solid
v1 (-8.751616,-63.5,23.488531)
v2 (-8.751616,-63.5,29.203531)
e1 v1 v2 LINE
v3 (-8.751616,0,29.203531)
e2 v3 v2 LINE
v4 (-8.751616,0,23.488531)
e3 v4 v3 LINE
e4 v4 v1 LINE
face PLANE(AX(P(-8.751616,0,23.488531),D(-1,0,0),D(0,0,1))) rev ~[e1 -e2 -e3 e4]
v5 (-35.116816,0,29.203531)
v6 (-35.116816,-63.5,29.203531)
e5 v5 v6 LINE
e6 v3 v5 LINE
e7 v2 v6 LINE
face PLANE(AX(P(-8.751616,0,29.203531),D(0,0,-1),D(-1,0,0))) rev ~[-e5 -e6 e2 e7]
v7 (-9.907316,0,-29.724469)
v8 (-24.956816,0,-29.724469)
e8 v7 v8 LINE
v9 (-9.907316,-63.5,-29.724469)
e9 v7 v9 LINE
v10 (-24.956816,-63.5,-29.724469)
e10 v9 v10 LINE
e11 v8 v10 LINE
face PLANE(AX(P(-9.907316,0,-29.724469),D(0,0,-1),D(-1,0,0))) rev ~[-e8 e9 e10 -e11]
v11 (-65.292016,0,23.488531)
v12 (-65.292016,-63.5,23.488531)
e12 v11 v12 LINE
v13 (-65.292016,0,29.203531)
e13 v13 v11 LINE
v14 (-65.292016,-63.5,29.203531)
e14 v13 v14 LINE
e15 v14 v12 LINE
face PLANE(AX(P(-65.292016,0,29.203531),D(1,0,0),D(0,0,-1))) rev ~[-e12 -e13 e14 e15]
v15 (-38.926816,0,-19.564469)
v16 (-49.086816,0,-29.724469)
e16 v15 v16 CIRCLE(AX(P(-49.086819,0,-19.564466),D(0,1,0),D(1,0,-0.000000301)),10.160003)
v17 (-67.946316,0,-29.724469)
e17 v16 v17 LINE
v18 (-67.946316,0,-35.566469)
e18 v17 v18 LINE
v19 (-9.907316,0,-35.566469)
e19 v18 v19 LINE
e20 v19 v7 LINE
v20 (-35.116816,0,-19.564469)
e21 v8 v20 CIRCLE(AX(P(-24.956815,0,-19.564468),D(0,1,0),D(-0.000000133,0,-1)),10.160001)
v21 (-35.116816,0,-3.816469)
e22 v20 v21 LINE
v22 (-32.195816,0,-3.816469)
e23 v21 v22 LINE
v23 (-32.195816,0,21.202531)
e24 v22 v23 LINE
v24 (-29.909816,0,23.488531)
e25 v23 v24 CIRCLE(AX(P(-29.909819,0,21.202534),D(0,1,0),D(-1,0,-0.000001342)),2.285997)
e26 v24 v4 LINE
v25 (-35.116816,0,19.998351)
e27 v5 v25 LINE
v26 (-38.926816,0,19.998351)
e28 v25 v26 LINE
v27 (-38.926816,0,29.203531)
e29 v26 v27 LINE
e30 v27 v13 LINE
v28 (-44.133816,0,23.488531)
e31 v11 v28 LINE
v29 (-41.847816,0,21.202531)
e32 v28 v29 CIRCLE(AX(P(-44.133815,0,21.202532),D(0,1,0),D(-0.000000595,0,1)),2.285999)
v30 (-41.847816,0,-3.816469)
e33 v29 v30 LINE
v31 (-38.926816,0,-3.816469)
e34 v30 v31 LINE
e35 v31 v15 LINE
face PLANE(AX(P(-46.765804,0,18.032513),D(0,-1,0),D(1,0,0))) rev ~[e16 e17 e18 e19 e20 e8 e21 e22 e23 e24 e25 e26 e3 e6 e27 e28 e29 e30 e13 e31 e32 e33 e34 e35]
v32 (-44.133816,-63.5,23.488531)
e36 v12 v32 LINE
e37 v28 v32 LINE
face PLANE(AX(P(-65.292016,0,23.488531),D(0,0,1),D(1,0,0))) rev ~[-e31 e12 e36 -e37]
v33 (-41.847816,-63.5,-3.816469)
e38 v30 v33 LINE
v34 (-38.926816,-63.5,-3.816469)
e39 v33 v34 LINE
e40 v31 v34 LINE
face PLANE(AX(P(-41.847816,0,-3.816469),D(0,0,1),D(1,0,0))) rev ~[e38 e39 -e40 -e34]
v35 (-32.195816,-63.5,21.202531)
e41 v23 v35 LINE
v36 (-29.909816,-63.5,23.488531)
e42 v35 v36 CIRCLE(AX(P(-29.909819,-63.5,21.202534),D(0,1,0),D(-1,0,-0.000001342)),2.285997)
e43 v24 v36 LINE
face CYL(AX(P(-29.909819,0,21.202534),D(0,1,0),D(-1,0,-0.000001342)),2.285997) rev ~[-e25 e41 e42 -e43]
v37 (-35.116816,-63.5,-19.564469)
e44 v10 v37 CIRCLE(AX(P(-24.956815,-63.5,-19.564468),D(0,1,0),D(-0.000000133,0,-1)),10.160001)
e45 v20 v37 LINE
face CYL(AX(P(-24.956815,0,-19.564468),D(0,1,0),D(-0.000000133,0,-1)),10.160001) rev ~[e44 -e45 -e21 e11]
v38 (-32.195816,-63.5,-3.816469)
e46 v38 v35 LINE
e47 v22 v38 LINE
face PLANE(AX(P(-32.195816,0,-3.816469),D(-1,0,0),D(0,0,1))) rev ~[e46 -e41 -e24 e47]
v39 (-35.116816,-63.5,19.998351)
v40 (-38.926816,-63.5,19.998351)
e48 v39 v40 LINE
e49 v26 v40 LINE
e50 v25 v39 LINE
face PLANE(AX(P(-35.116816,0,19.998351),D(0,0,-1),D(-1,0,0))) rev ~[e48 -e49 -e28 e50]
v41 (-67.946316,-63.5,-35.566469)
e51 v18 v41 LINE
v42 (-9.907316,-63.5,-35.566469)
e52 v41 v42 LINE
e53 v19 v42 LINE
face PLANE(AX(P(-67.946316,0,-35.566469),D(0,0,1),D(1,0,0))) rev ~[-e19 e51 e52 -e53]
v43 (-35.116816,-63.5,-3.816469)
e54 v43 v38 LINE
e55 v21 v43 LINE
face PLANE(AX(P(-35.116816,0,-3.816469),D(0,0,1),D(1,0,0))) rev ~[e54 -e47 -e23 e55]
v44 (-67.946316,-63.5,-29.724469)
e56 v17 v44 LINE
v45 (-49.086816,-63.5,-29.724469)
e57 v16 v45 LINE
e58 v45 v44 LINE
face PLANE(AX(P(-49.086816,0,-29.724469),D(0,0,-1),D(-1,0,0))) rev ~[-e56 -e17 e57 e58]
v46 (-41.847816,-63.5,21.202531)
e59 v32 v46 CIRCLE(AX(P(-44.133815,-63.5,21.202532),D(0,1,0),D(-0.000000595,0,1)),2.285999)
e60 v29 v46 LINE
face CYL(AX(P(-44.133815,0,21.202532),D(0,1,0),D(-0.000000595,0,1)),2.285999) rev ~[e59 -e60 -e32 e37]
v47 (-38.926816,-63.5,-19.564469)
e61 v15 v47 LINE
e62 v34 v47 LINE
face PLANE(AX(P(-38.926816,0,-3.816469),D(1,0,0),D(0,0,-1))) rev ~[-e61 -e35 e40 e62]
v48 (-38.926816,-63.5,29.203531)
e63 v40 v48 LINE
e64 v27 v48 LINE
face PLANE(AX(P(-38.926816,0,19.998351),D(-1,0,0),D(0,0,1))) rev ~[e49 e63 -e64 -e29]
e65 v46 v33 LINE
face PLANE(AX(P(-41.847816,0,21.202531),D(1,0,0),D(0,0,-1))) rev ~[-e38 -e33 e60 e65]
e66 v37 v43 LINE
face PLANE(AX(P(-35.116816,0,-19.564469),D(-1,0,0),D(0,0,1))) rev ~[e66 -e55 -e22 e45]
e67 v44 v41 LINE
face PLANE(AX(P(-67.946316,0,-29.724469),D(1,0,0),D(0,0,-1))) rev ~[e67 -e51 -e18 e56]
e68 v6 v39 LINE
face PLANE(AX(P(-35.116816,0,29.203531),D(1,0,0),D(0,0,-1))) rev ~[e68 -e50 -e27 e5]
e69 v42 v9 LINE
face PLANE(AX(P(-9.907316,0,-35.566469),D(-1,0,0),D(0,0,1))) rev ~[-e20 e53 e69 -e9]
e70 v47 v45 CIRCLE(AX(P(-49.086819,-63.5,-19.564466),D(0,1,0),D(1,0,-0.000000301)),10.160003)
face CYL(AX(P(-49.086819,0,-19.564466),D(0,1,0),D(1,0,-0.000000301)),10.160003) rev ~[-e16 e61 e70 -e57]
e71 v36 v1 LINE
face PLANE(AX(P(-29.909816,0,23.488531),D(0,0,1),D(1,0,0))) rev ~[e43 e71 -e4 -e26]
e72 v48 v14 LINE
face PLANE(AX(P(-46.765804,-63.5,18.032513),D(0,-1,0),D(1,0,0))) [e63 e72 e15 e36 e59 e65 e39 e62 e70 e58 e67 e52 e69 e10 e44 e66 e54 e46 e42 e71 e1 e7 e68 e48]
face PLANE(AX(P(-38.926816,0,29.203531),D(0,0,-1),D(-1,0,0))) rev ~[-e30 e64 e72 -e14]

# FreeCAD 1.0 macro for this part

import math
import FreeCAD as App
import Part
import Sketcher

V = App.Vector
Q = App.Units.Quantity

doc = App.newDocument("Part")
body = doc.addObject("PartDesign::Body", "Body")

sketch1 = body.newObject("Sketcher::SketchObject", "Sketch")
sketch1.AttachmentSupport = (doc.getObject("XZ_Plane"), [""])
sketch1.MapMode = "FlatFace"
sketch1.addGeometry([
    Part.LineSegment(V(-38.926816, 29.203531, 0), V(-65.292016, 29.203531, 0)),
    Part.LineSegment(V(-65.292016, 29.203531, 0), V(-65.292016, 23.488531, 0)),
    Part.LineSegment(V(-65.292016, 23.488531, 0), V(-44.133816, 23.488531, 0)),
    Part.ArcOfCircle(Part.Circle(V(-44.133815, 21.202532, 0), V(0, 0, 1), 2.285999), math.radians(-0.000034), math.radians(90.000034)),
    Part.LineSegment(V(-41.847816, 21.202531, 0), V(-41.847816, -3.816469, 0)),
    Part.LineSegment(V(-41.847816, -3.816469, 0), V(-38.926816, -3.816469, 0)),
    Part.LineSegment(V(-38.926816, -3.816469, 0), V(-38.926816, -19.564469, 0)),
    Part.ArcOfCircle(Part.Circle(V(-49.086819, -19.564466, 0), V(0, 0, 1), 10.160003), math.radians(-89.999983), math.radians(-0.000017)),
    Part.LineSegment(V(-49.086816, -29.724469, 0), V(-67.946316, -29.724469, 0)),
    Part.LineSegment(V(-67.946316, -29.724469, 0), V(-67.946316, -35.566469, 0)),
    Part.LineSegment(V(-67.946316, -35.566469, 0), V(-9.907316, -35.566469, 0)),
    Part.LineSegment(V(-9.907316, -35.566469, 0), V(-9.907316, -29.724469, 0)),
    Part.LineSegment(V(-9.907316, -29.724469, 0), V(-24.956816, -29.724469, 0)),
    Part.ArcOfCircle(Part.Circle(V(-24.956815, -19.564468, 0), V(0, 0, 1), 10.160001), math.radians(-179.999992), math.radians(-90.000008)),
    Part.LineSegment(V(-35.116816, -19.564469, 0), V(-35.116816, -3.816469, 0)),
    Part.LineSegment(V(-35.116816, -3.816469, 0), V(-32.195816, -3.816469, 0)),
    Part.LineSegment(V(-32.195816, -3.816469, 0), V(-32.195816, 21.202531, 0)),
    Part.ArcOfCircle(Part.Circle(V(-29.909819, 21.202534, 0), V(0, 0, 1), 2.285997), math.radians(89.999923), math.radians(180.000077)),
    Part.LineSegment(V(-29.909816, 23.488531, 0), V(-8.751616, 23.488531, 0)),
    Part.LineSegment(V(-8.751616, 23.488531, 0), V(-8.751616, 29.203531, 0)),
    Part.LineSegment(V(-8.751616, 29.203531, 0), V(-35.116816, 29.203531, 0)),
    Part.LineSegment(V(-35.116816, 29.203531, 0), V(-35.116816, 19.998351, 0)),
    Part.LineSegment(V(-35.116816, 19.998351, 0), V(-38.926816, 19.998351, 0)),
    Part.LineSegment(V(-38.926816, 19.998351, 0), V(-38.926816, 29.203531, 0)),
], False)
sketch1.addConstraint([
    Sketcher.Constraint("Coincident", 0, 2, 1, 1),
    Sketcher.Constraint("Coincident", 1, 2, 2, 1),
    Sketcher.Constraint("Tangent", 2, 2, 3, 2),
    Sketcher.Constraint("Tangent", 3, 1, 4, 1),
    Sketcher.Constraint("Coincident", 4, 2, 5, 1),
    Sketcher.Constraint("Coincident", 5, 2, 6, 1),
    Sketcher.Constraint("Tangent", 6, 2, 7, 2),
    Sketcher.Constraint("Tangent", 7, 1, 8, 1),
    Sketcher.Constraint("Coincident", 8, 2, 9, 1),
    Sketcher.Constraint("Coincident", 9, 2, 10, 1),
    Sketcher.Constraint("Coincident", 10, 2, 11, 1),
    Sketcher.Constraint("Coincident", 11, 2, 12, 1),
    Sketcher.Constraint("Tangent", 12, 2, 13, 2),
    Sketcher.Constraint("Tangent", 13, 1, 14, 1),
    Sketcher.Constraint("Coincident", 14, 2, 15, 1),
    Sketcher.Constraint("Coincident", 15, 2, 16, 1),
    Sketcher.Constraint("Tangent", 16, 2, 17, 2),
    Sketcher.Constraint("Tangent", 17, 1, 18, 1),
    Sketcher.Constraint("Coincident", 18, 2, 19, 1),
    Sketcher.Constraint("Coincident", 19, 2, 20, 1),
    Sketcher.Constraint("Coincident", 20, 2, 21, 1),
    Sketcher.Constraint("Coincident", 21, 2, 22, 1),
    Sketcher.Constraint("Coincident", 22, 2, 23, 1),
    Sketcher.Constraint("Coincident", 23, 2, 0, 1),
    Sketcher.Constraint("Horizontal", 0),
    Sketcher.Constraint("Vertical", 1),
    Sketcher.Constraint("Horizontal", 2),
    Sketcher.Constraint("Vertical", 4),
    Sketcher.Constraint("Horizontal", 5),
    Sketcher.Constraint("Vertical", 6),
    Sketcher.Constraint("Horizontal", 8),
    Sketcher.Constraint("Vertical", 9),
    Sketcher.Constraint("Horizontal", 10),
    Sketcher.Constraint("Vertical", 11),
    Sketcher.Constraint("Horizontal", 12),
    Sketcher.Constraint("Vertical", 14),
    Sketcher.Constraint("Horizontal", 15),
    Sketcher.Constraint("Vertical", 16),
    Sketcher.Constraint("Horizontal", 18),
    Sketcher.Constraint("Vertical", 19),
    Sketcher.Constraint("Horizontal", 20),
    Sketcher.Constraint("Vertical", 21),
    Sketcher.Constraint("Horizontal", 22),
    Sketcher.Constraint("Vertical", 23),
    Sketcher.Constraint("Equal", 7, 13),
    Sketcher.Constraint("Equal", 3, 17),
    Sketcher.Constraint("Horizontal", 7, 3, 13, 3),
    Sketcher.Constraint("Horizontal", 3, 3, 17, 3),
    Sketcher.Constraint("Horizontal", 5, 2, 14, 2),
    Sketcher.Constraint("Horizontal", 0, 2, 19, 2),
    Sketcher.Constraint("Vertical", 14, 2, 20, 2),
    Sketcher.Constraint("Vertical", 6, 2, 22, 2),
    Sketcher.Constraint("Equal", 5, 15),
    Sketcher.Constraint("Equal", 2, 18),
    Sketcher.Constraint("Radius", 7, Q("0.4000001 in")),
    Sketcher.Constraint("Radius", 3, Q("0.0899999 in")),
    Sketcher.Constraint("DistanceX", 22, 2, 22, 1, Q("0.15 in")),
    Sketcher.Constraint("DistanceY", 6, 2, 6, 1, Q("0.62 in")),
    Sketcher.Constraint("DistanceY", 9, 2, 9, 1, Q("0.23 in")),
    Sketcher.Constraint("DistanceX", 0, 2, 0, 1, Q("1.038 in")),
    Sketcher.Constraint("DistanceX", 2, 1, 2, 2, Q("0.833 in")),
    Sketcher.Constraint("DistanceX", 10, 1, 10, 2, Q("2.285 in")),
    Sketcher.Constraint("DistanceY", 1, 2, 1, 1, Q("0.225 in")),
    Sketcher.Constraint("DistanceY", 4, 2, 4, 1, Q("0.985 in")),
    Sketcher.Constraint("DistanceX", 8, 2, 8, 1, Q("0.7425 in")),
    Sketcher.Constraint("DistanceY", 21, 2, 21, 1, Q("9.20518 mm")),
    Sketcher.Constraint("DistanceX", 7, 3, -1, 1, Q("49.086819 mm")),
    Sketcher.Constraint("DistanceY", -1, 1, 0, 2, Q("29.203531 mm")),
])
pad1 = body.newObject("PartDesign::Pad", "Pad")
pad1.Profile = sketch1
pad1.Length = Q("2.5 in")

doc.recompute()
